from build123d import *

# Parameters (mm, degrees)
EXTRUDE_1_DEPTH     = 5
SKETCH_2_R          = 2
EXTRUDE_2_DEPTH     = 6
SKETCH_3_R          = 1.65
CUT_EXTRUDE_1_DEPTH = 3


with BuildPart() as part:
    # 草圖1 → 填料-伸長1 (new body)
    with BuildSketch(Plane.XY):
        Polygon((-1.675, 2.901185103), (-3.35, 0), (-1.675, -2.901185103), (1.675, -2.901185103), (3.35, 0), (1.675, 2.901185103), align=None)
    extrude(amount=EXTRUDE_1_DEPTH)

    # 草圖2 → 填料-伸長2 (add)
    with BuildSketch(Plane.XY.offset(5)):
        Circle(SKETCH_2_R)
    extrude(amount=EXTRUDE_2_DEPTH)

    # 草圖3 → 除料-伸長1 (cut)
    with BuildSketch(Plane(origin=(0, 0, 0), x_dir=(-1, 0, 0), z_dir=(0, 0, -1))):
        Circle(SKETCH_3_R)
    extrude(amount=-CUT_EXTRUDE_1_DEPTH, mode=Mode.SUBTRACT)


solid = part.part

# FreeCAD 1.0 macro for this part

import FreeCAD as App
import Part
import Sketcher

V = App.Vector
Q = App.Units.Quantity


def add_polygon(sketch, points):
    """Adds a closed chain of lines whose ends are joined by coincident constraints."""
    first, n = sketch.GeometryCount, len(points)
    for a, b in zip(points, points[1:] + points[:1]):
        sketch.addGeometry(Part.LineSegment(App.Vector(*a, 0), App.Vector(*b, 0)), False)
    for i in range(n):
        sketch.addConstraint(Sketcher.Constraint("Coincident", first + i, 2, first + (i + 1) % n, 1))

doc = App.newDocument("Part")
params = doc.addObject("Spreadsheet::Sheet", "Params")
for row, (alias, value) in enumerate([
    ("sketch1_width", "3.35 mm"),
    ("pad1_length", "5 mm"),
    ("sketch2_diameter", "4 mm"),
    ("pad2_length", "6 mm"),
    ("sketch3_diameter", "3.3 mm"),
    ("pocket1_length", "3 mm"),
], start=1):
    params.set(f"A{row}", alias)
    params.set(f"B{row}", "=" + value)
    params.setAlias(f"B{row}", alias)

body = doc.addObject("PartDesign::Body", "Body")

sketch1 = body.newObject("Sketcher::SketchObject", "Sketch")
sketch1.AttachmentSupport = (doc.getObject("XY_Plane"), [""])
sketch1.MapMode = "FlatFace"
add_polygon(sketch1, [(-1.7, 2.9), (-3.4, 0), (-1.7, -2.9), (1.7, -2.9), (3.4, 0), (1.7, 2.9)])
sketch1.addConstraint(Sketcher.Constraint("Horizontal", 2))
sketch1.addConstraint(Sketcher.Constraint("Horizontal", 5))
sketch1.addConstraint(Sketcher.Constraint("Symmetric", 0, 2, 3, 2, -1, 1))
sketch1.addConstraint(Sketcher.Constraint("Symmetric", 1, 2, 4, 2, -1, 1))
sketch1.addConstraint(Sketcher.Constraint("PointOnObject", 0, 2, -1))
sketch1.addConstraint(Sketcher.Constraint("Parallel", 0, 3))
sketch1.addConstraint(Sketcher.Constraint("Vertical", 2, 2, 4, 2))
sketch1.addConstraint(Sketcher.Constraint("Angle", 0, Q("-120 deg")))
sketch1.addConstraint(Sketcher.Constraint("DistanceX", 2, 1, 2, 2, 3.35))
sketch1.addConstraint(Sketcher.Constraint("DistanceX", 0, 2, 3, 2, 6.7))
sketch1.setExpression("Constraints[14]", "Params.sketch1_width")
pad1 = body.newObject("PartDesign::Pad", "Pad")
pad1.Profile = sketch1
pad1.setExpression("Length", "Params.pad1_length")

sketch2 = body.newObject("Sketcher::SketchObject", "Sketch001")
sketch2.AttachmentSupport = (doc.getObject("XY_Plane"), [""])
sketch2.MapMode = "FlatFace"
sketch2.AttachmentOffset = App.Placement(V(0, 0, 5), App.Rotation())
sketch2.addGeometry(Part.Circle(V(0, 0, 0), V(0, 0, 1), 2), False)
sketch2.addConstraint(Sketcher.Constraint("Coincident", 0, 3, -1, 1))
sketch2.addConstraint(Sketcher.Constraint("Diameter", 0, 4.0))
sketch2.setExpression("Constraints[1]", "Params.sketch2_diameter")
pad2 = body.newObject("PartDesign::Pad", "Pad001")
pad2.Profile = sketch2
pad2.setExpression("Length", "Params.pad2_length")

sketch3 = body.newObject("Sketcher::SketchObject", "Sketch002")
sketch3.AttachmentSupport = (doc.getObject("XY_Plane"), [""])
sketch3.MapMode = "FlatFace"
sketch3.addGeometry(Part.Circle(V(0, 0, 0), V(0, 0, 1), 1.6), False)
sketch3.addConstraint(Sketcher.Constraint("Coincident", 0, 3, -1, 1))
sketch3.addConstraint(Sketcher.Constraint("Diameter", 0, 3.3))
sketch3.setExpression("Constraints[1]", "Params.sketch3_diameter")
pocket1 = body.newObject("PartDesign::Pocket", "Pocket")
pocket1.Profile = sketch3
pocket1.setExpression("Length", "Params.pocket1_length")
pocket1.Reversed = True

doc.recompute()
